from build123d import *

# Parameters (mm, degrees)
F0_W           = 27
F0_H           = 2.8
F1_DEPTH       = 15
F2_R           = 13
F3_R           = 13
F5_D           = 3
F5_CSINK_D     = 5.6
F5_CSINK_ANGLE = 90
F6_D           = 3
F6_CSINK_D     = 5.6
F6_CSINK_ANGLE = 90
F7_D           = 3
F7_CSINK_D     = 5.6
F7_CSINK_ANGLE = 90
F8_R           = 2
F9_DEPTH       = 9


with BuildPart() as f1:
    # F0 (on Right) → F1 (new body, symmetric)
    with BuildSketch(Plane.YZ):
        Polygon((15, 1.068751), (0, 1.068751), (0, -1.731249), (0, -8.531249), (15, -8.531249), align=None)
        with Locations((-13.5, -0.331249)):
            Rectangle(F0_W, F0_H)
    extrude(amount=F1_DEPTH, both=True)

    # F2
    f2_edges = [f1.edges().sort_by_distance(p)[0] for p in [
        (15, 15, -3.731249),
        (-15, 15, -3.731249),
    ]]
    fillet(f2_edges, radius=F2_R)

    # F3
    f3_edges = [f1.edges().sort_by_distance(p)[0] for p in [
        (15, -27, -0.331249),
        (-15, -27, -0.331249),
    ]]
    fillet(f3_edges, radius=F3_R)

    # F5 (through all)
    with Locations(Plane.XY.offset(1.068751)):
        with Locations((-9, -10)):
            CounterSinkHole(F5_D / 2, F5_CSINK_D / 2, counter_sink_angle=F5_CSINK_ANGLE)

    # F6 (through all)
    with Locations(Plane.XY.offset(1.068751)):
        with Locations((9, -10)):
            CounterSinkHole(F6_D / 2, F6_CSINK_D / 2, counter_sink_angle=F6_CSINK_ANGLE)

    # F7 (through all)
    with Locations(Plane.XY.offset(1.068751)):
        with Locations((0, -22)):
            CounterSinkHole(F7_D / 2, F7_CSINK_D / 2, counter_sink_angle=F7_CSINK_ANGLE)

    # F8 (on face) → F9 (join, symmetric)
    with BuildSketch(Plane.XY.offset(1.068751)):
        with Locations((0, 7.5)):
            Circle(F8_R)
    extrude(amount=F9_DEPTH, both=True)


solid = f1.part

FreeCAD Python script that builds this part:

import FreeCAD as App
import Part
import Sketcher


def edges_at(feature, points):
    """Names of the edges that pass closest to the given points."""
    edges = feature.Shape.Edges
    near = lambda p: min(range(len(edges)), key=lambda i: edges[i].distToShape(Part.Vertex(*p))[0])
    return sorted({f"Edge{near(p) + 1}" for p in points})

doc = App.newDocument("Part")
body = doc.addObject("PartDesign::Body", "Body")

sketch1 = body.newObject("Sketcher::SketchObject", "Sketch")
sketch1.AttachmentSupport = (doc.getObject("YZ_Plane"), [""])
sketch1.MapMode = "FlatFace"
sketch1.addGeometry(Part.LineSegment(App.Vector(15, 1.1, 0), App.Vector(-27, 1.1, 0)), False)
sketch1.addGeometry(Part.LineSegment(App.Vector(-27, 1.1, 0), App.Vector(-27, -1.7, 0)), False)
sketch1.addGeometry(Part.LineSegment(App.Vector(-27, -1.7, 0), App.Vector(0, -1.7, 0)), False)
sketch1.addGeometry(Part.LineSegment(App.Vector(0, -1.7, 0), App.Vector(0, -8.5, 0)), False)
sketch1.addGeometry(Part.LineSegment(App.Vector(0, -8.5, 0), App.Vector(15, -8.5, 0)), False)
sketch1.addGeometry(Part.LineSegment(App.Vector(15, -8.5, 0), App.Vector(15, 1.1, 0)), False)
sketch1.addConstraint(Sketcher.Constraint("Coincident", 0, 2, 1, 1))
sketch1.addConstraint(Sketcher.Constraint("Coincident", 1, 2, 2, 1))
sketch1.addConstraint(Sketcher.Constraint("Coincident", 2, 2, 3, 1))
sketch1.addConstraint(Sketcher.Constraint("Coincident", 3, 2, 4, 1))
sketch1.addConstraint(Sketcher.Constraint("Coincident", 4, 2, 5, 1))
sketch1.addConstraint(Sketcher.Constraint("Coincident", 5, 2, 0, 1))
sketch1.addConstraint(Sketcher.Constraint("Horizontal", 0))
sketch1.addConstraint(Sketcher.Constraint("Vertical", 1))
sketch1.addConstraint(Sketcher.Constraint("Horizontal", 2))
sketch1.addConstraint(Sketcher.Constraint("Vertical", 3))
sketch1.addConstraint(Sketcher.Constraint("Horizontal", 4))
sketch1.addConstraint(Sketcher.Constraint("Vertical", 5))
sketch1.addConstraint(Sketcher.Constraint("PointOnObject", 2, 2, -2))
sketch1.addConstraint(Sketcher.Constraint("DistanceX", 0, 2, 0, 1, 42.0))
sketch1.addConstraint(Sketcher.Constraint("DistanceX", 2, 1, 2, 2, 27.0))
sketch1.addConstraint(Sketcher.Constraint("DistanceY", 1, 2, 1, 1, 2.8))
sketch1.addConstraint(Sketcher.Constraint("DistanceY", 3, 2, 3, 1, 6.8))
sketch1.addConstraint(Sketcher.Constraint("DistanceY", -1, 1, 0, 2, 1.068751))
pad1 = body.newObject("PartDesign::Pad", "Pad")
pad1.Profile = sketch1
pad1.Length = 30
pad1.Midplane = True
doc.recompute()

fillet = body.newObject("PartDesign::Fillet", "Fillet")
fillet.Base = (pad1, edges_at(pad1, [(15, 15, -3.731), (-15, 15, -3.731)]))
fillet.Radius = 13
doc.recompute()

fillet2 = body.newObject("PartDesign::Fillet", "Fillet001")
fillet2.Base = (fillet, edges_at(fillet, [(15, -27, -0.331), (-15, -27, -0.331)]))
fillet2.Radius = 13

sketch2 = body.newObject("Sketcher::SketchObject", "Sketch001")
sketch2.AttachmentSupport = (doc.getObject("XY_Plane"), [""])
sketch2.MapMode = "FlatFace"
sketch2.AttachmentOffset = App.Placement(App.Vector(0, 0, 1.068751), App.Rotation())
sketch2.addGeometry(Part.Circle(App.Vector(-9, -10, 0), App.Vector(0, 0, 1), 1.5), False)
sketch2.addConstraint(Sketcher.Constraint("Diameter", 0, 3.0))
sketch2.addConstraint(Sketcher.Constraint("DistanceX", 0, 3, -1, 1, 9.0))
sketch2.addConstraint(Sketcher.Constraint("DistanceY", 0, 3, -1, 1, 10.0))
doc.recompute()
hole = body.newObject("PartDesign::Hole", "Hole")
hole.Profile = sketch2
hole.ThreadType = "None"
hole.Diameter = 3
hole.DepthType = "ThroughAll"
hole.HoleCutType = "Countersink"
hole.HoleCutDiameter = 5.6
hole.HoleCutCountersinkAngle = 90

sketch3 = body.newObject("Sketcher::SketchObject", "Sketch002")
sketch3.AttachmentSupport = (doc.getObject("XY_Plane"), [""])
sketch3.MapMode = "FlatFace"
sketch3.AttachmentOffset = App.Placement(App.Vector(0, 0, 1.068751), App.Rotation())
sketch3.addGeometry(Part.Circle(App.Vector(9, -10, 0), App.Vector(0, 0, 1), 1.5), False)
sketch3.addConstraint(Sketcher.Constraint("Diameter", 0, 3.0))
sketch3.addConstraint(Sketcher.Constraint("DistanceX", -1, 1, 0, 3, 9.0))
sketch3.addConstraint(Sketcher.Constraint("DistanceY", 0, 3, -1, 1, 10.0))
doc.recompute()
hole2 = body.newObject("PartDesign::Hole", "Hole001")
hole2.Profile = sketch3
hole2.ThreadType = "None"
hole2.Diameter = 3
hole2.DepthType = "ThroughAll"
hole2.HoleCutType = "Countersink"
hole2.HoleCutDiameter = 5.6
hole2.HoleCutCountersinkAngle = 90

sketch4 = body.newObject("Sketcher::SketchObject", "Sketch003")
sketch4.AttachmentSupport = (doc.getObject("XY_Plane"), [""])
sketch4.MapMode = "FlatFace"
sketch4.AttachmentOffset = App.Placement(App.Vector(0, 0, 1.068751), App.Rotation())
sketch4.addGeometry(Part.Circle(App.Vector(0, -22, 0), App.Vector(0, 0, 1), 1.5), False)
sketch4.addConstraint(Sketcher.Constraint("PointOnObject", 0, 3, -2))
sketch4.addConstraint(Sketcher.Constraint("Diameter", 0, 3.0))
sketch4.addConstraint(Sketcher.Constraint("DistanceY", 0, 3, -1, 1, 22.0))
doc.recompute()
hole3 = body.newObject("PartDesign::Hole", "Hole002")
hole3.Profile = sketch4
hole3.ThreadType = "None"
hole3.Diameter = 3
hole3.DepthType = "ThroughAll"
hole3.HoleCutType = "Countersink"
hole3.HoleCutDiameter = 5.6
hole3.HoleCutCountersinkAngle = 90

sketch5 = body.newObject("Sketcher::SketchObject", "Sketch004")
sketch5.AttachmentSupport = (doc.getObject("XY_Plane"), [""])
sketch5.MapMode = "FlatFace"
sketch5.AttachmentOffset = App.Placement(App.Vector(0, 0, 1.068751), App.Rotation())
sketch5.addGeometry(Part.Circle(App.Vector(0, 7.5, 0), App.Vector(0, 0, 1), 2), False)
sketch5.addConstraint(Sketcher.Constraint("PointOnObject", 0, 3, -2))
sketch5.addConstraint(Sketcher.Constraint("Diameter", 0, 4.0))
sketch5.addConstraint(Sketcher.Constraint("DistanceY", -1, 1, 0, 3, 7.5))
pad2 = body.newObject("PartDesign::Pad", "Pad001")
pad2.Profile = sketch5
pad2.Length = 18
pad2.Midplane = True

doc.recompute()
